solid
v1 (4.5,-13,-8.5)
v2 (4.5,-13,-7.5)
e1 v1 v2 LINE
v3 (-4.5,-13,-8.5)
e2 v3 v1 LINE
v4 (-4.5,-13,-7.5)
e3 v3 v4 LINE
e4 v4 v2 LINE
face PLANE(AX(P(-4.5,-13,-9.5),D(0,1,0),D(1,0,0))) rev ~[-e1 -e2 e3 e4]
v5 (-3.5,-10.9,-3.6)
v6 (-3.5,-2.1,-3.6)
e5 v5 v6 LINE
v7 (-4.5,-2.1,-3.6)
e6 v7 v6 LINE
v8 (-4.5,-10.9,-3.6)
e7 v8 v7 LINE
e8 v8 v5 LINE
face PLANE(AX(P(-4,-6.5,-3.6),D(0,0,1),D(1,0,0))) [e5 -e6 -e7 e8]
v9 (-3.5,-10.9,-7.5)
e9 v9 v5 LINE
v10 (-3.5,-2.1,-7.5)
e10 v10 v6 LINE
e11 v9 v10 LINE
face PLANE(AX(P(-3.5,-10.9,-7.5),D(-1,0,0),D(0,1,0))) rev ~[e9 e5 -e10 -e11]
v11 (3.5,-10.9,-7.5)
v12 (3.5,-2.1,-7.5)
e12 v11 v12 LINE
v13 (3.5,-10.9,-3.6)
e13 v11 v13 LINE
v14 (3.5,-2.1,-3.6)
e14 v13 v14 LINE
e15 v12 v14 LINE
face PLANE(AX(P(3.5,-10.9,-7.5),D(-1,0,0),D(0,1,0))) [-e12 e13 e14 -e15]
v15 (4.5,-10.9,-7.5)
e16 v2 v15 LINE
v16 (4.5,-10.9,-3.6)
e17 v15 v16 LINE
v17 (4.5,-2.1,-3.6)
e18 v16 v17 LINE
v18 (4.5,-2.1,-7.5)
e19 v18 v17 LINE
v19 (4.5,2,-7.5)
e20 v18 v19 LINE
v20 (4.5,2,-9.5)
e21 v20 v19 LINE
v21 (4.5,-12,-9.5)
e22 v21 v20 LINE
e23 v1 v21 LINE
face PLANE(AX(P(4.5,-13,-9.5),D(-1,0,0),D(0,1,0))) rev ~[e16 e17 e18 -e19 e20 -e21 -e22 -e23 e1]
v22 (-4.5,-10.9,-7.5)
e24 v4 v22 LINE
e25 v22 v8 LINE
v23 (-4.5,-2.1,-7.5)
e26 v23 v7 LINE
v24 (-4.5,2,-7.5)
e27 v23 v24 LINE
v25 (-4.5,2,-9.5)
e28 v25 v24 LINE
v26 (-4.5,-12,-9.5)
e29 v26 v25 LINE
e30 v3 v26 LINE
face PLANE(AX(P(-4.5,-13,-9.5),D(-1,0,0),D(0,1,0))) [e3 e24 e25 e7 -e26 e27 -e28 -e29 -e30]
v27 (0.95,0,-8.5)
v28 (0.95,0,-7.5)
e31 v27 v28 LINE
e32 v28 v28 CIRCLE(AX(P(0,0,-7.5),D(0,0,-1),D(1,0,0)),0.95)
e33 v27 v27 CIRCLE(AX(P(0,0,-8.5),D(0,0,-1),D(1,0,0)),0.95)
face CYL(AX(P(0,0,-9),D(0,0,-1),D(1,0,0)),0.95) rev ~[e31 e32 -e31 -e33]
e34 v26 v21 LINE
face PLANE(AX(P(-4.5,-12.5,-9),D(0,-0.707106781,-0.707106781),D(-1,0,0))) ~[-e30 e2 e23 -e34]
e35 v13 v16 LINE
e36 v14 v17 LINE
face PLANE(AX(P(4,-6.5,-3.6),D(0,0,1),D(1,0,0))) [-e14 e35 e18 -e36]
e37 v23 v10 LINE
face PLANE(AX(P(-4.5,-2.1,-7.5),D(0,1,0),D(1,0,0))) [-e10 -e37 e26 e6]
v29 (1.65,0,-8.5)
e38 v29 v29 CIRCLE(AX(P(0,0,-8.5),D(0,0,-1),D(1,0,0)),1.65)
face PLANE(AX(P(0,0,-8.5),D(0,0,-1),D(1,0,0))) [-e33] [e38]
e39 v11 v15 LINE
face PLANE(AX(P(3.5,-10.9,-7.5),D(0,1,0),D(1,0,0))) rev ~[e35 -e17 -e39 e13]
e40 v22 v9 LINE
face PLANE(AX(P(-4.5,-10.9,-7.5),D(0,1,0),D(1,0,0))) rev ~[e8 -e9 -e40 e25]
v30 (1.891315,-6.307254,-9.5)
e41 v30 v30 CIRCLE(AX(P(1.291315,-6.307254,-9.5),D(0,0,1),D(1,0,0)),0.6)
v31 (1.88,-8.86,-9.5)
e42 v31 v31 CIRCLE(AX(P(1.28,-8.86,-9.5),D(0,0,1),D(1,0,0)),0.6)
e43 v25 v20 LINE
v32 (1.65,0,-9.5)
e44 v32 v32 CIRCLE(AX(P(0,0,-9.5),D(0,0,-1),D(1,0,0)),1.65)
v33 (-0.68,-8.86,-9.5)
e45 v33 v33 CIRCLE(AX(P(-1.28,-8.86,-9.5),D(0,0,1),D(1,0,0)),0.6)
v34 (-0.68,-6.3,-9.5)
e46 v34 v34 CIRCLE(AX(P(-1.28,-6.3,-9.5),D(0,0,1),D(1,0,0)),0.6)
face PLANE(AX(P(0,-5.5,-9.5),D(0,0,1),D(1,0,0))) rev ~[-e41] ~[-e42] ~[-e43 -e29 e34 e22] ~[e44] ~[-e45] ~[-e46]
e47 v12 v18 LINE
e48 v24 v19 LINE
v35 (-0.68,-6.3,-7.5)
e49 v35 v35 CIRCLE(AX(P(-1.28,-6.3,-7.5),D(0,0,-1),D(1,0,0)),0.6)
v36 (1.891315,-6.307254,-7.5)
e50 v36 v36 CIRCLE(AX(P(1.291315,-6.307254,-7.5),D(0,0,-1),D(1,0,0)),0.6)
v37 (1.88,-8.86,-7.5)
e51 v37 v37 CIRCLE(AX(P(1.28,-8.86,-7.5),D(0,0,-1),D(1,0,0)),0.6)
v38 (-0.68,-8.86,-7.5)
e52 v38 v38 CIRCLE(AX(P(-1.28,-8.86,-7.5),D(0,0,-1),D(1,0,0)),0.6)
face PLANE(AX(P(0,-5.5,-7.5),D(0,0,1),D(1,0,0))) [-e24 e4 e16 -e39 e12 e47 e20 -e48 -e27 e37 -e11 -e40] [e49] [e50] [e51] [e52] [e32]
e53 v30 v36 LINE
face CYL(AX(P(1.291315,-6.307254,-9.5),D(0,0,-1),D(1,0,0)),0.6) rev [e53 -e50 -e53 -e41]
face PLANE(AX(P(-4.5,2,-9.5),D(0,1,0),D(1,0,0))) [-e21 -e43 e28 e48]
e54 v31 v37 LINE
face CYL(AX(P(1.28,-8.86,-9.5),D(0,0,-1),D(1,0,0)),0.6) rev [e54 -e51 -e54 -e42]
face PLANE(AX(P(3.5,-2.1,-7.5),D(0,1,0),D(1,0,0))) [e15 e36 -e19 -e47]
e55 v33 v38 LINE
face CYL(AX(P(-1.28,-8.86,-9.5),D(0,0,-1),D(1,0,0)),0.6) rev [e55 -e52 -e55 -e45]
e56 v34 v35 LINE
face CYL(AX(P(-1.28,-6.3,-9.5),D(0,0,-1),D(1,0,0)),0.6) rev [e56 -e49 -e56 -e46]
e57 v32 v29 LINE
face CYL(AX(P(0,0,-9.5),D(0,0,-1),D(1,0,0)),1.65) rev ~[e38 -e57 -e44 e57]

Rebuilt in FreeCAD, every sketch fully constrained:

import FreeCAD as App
import Part
import Sketcher
from FreeCAD import Vector
Q = App.Units.Quantity


def edges_at(feature, points):
    """Names of the edges that pass closest to the given points."""
    edges = feature.Shape.Edges
    near = lambda p: min(range(len(edges)), key=lambda i: edges[i].distToShape(Part.Vertex(*p))[0])
    return sorted({f"Edge{near(p) + 1}" for p in points})


def add_polygon(sketch, points):
    """Adds a closed chain of lines whose ends are joined by coincident constraints."""
    first, n = sketch.GeometryCount, len(points)
    for a, b in zip(points, points[1:] + points[:1]):
        sketch.addGeometry(Part.LineSegment(App.Vector(*a, 0), App.Vector(*b, 0)), False)
    for i in range(n):
        sketch.addConstraint(Sketcher.Constraint("Coincident", first + i, 2, first + (i + 1) % n, 1))

doc = App.newDocument("Part")
body = doc.addObject("PartDesign::Body", "Body")

sketch1 = doc.addObject("Sketcher::SketchObject", "Sketch")
body.addObject(sketch1)
sketch1.AttachmentSupport = (doc.XY_Plane, [""])
sketch1.MapMode = "FlatFace"
add_polygon(sketch1, [(-4, 2), (-4, -13), (4, -13), (4, 2)])
sketch1.addConstraint([
    Sketcher.Constraint("Vertical", 0),
    Sketcher.Constraint("Horizontal", 1),
    Sketcher.Constraint("Vertical", 2),
    Sketcher.Constraint("Horizontal", 3),
    Sketcher.Constraint("DistanceX", 1, 1, 1, 2, Q("9 mm")),
    Sketcher.Constraint("DistanceY", 0, 2, 0, 1, Q("15 mm")),
    Sketcher.Constraint("DistanceY", 0, 2, -1, 1, Q("13 mm")),
    Sketcher.Constraint("DistanceX", 0, 2, -1, 1, Q("4.5 mm")),
])
pad1 = doc.addObject("PartDesign::Pad", "Pad")
body.addObject(pad1)
pad1.Profile = sketch1
pad1.Length = 2

sketch2 = doc.addObject("Sketcher::SketchObject", "Sketch001")
body.addObject(sketch2)
sketch2.AttachmentSupport = (doc.XY_Plane, [""])
sketch2.MapMode = "FlatFace"
sketch2.addGeometry(Part.Circle(Vector(0, 0, 0), Vector(0, 0, 1), 1.6), False)
sketch2.addConstraint([
    Sketcher.Constraint("Coincident", 0, 3, -1, 1),
    Sketcher.Constraint("Diameter", 0, Q("3.3 mm")),
])
pocket1 = doc.addObject("PartDesign::Pocket", "Pocket")
body.addObject(pocket1)
pocket1.Profile = sketch2
pocket1.Length = 1
pocket1.Reversed = True

sketch3 = doc.addObject("Sketcher::SketchObject", "Sketch002")
body.addObject(sketch3)
sketch3.AttachmentSupport = (doc.XY_Plane, [""])
sketch3.MapMode = "FlatFace"
sketch3.AttachmentOffset = App.Placement(Vector(0, 0, 0.5), App.Rotation())
sketch3.addGeometry(Part.Circle(Vector(0, 0, 0), Vector(0, 0, 1), 0.9), False)
sketch3.addConstraint([
    Sketcher.Constraint("Coincident", 0, 3, -1, 1),
    Sketcher.Constraint("Diameter", 0, Q("1.9 mm")),
])
pocket2 = doc.addObject("PartDesign::Pocket", "Pocket001")
body.addObject(pocket2)
pocket2.Profile = sketch3
pocket2.Length = 5
pocket2.Reversed = True

sketch4 = doc.addObject("Sketcher::SketchObject", "Sketch003")
body.addObject(sketch4)
sketch4.AttachmentSupport = (doc.XY_Plane, [""])
sketch4.MapMode = "FlatFace"
sketch4.AttachmentOffset = App.Placement(Vector(0, 0, 2), App.Rotation())
add_polygon(sketch4, [(-4.5, -2.1), (-4.5, -10.9), (-3.5, -10.9), (-3.5, -2.1)])
add_polygon(sketch4, [(3.5, -2.1), (3.5, -10.9), (4.5, -10.9), (4.5, -2.1)])
sketch4.addConstraint([
    Sketcher.Constraint("Vertical", 0),
    Sketcher.Constraint("Horizontal", 1),
    Sketcher.Constraint("Vertical", 2),
    Sketcher.Constraint("Horizontal", 3),
    Sketcher.Constraint("Vertical", 4),
    Sketcher.Constraint("Horizontal", 5),
    Sketcher.Constraint("Vertical", 6),
    Sketcher.Constraint("Horizontal", 7),
    Sketcher.Constraint("Symmetric", 1, 2, 4, 2, -2),
    Sketcher.Constraint("Symmetric", 3, 2, 6, 2, -2),
    Sketcher.Constraint("DistanceX", 1, 1, 1, 2, Q("1 mm")),
    Sketcher.Constraint("DistanceY", 0, 2, 0, 1, Q("8.8 mm")),
    Sketcher.Constraint("DistanceX", 1, 2, 4, 2, Q("7 mm")),
    Sketcher.Constraint("DistanceY", 0, 2, -1, 1, Q("10.9 mm")),
])
pad2 = doc.addObject("PartDesign::Pad", "Pad001")
body.addObject(pad2)
pad2.Profile = sketch4
pad2.Length = 3.9

sketch5 = doc.addObject("Sketcher::SketchObject", "Sketch004")
body.addObject(sketch5)
sketch5.AttachmentSupport = (doc.XY_Plane, [""])
sketch5.MapMode = "FlatFace"
sketch5.addGeometry([
    Part.Circle(Vector(-1.3, -6.3, 0), Vector(0, 0, 1), 0.6),
    Part.Circle(Vector(1.3, -6.3, 0), Vector(0, 0, 1), 0.6),
    Part.Circle(Vector(-1.3, -8.9, 0), Vector(0, 0, 1), 0.6),
    Part.Circle(Vector(1.3, -8.9, 0), Vector(0, 0, 1), 0.6),
], False)
sketch5.addConstraint([
    Sketcher.Constraint("Equal", 0, 1),
    Sketcher.Constraint("Equal", 1, 2),
    Sketcher.Constraint("Equal", 2, 3),
    Sketcher.Constraint("Symmetric", 2, 3, 3, 3, -2),
    Sketcher.Constraint("Vertical", 0, 3, 2, 3),
    Sketcher.Constraint("Diameter", 0, Q("1.2 mm")),
    Sketcher.Constraint("DistanceY", 0, 3, -1, 1, Q("6.3 mm")),
    Sketcher.Constraint("DistanceX", 0, 3, -1, 1, Q("1.28 mm")),
    Sketcher.Constraint("DistanceY", 2, 3, -1, 1, Q("8.86 mm")),
    Sketcher.Constraint("DistanceX", -1, 1, 1, 3, Q("1.291315 mm")),
    Sketcher.Constraint("DistanceY", 1, 3, -1, 1, Q("6.307254 mm")),
])
pocket3 = doc.addObject("PartDesign::Pocket", "Pocket002")
body.addObject(pocket3)
pocket3.Profile = sketch5
pocket3.Length = 5
pocket3.Reversed = True
doc.recompute()

chamfer = doc.addObject("PartDesign::Chamfer", "Chamfer")
body.addObject(chamfer)
chamfer.Base = (pocket3, edges_at(pocket3, [(0, -13, 0)]))
chamfer.Size = 1
body2 = doc.addObject("PartDesign::Body", "Body001")
doc.recompute()

body.Placement = App.Placement(Vector(0, 0, -9.5), App.Rotation(Vector(0, 0, 1), 0))
boolean = doc.addObject("PartDesign::Boolean", "Boolean")
body2.addObject(boolean)
boolean.Type = "Fuse"
boolean.addObjects([body])

doc.recompute()
